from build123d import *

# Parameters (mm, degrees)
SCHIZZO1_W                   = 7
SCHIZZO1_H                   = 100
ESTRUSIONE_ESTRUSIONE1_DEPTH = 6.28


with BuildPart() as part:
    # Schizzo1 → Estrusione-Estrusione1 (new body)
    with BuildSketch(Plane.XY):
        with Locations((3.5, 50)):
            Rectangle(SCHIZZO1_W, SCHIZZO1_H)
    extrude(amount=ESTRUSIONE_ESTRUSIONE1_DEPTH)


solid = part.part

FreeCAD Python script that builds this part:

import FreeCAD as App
import Part
import Sketcher


def add_polygon(sketch, points):
    """Adds a closed chain of lines whose ends are joined by coincident constraints."""
    first, n = sketch.GeometryCount, len(points)
    for a, b in zip(points, points[1:] + points[:1]):
        sketch.addGeometry(Part.LineSegment(App.Vector(*a, 0), App.Vector(*b, 0)), False)
    for i in range(n):
        sketch.addConstraint(Sketcher.Constraint("Coincident", first + i, 2, first + (i + 1) % n, 1))

doc = App.newDocument("Part")
params = doc.addObject("Spreadsheet::Sheet", "Params")
for row, (alias, value) in enumerate([
    ("sketch1_width", "7 mm"),
    ("sketch1_height", "100 mm"),
    ("pad1_length", "6.28 mm"),
], start=1):
    params.set(f"A{row}", alias)
    params.set(f"B{row}", "=" + value)
    params.setAlias(f"B{row}", alias)

body = doc.addObject("PartDesign::Body", "Body")

# Sketch on XY plane
sketch1 = body.newObject("Sketcher::SketchObject", "Sketch")
sketch1.AttachmentSupport = (doc.getObject("XY_Plane"), [""])
sketch1.MapMode = "FlatFace"
add_polygon(sketch1, [(0, 100), (0, 0), (7, 0), (7, 100)])  # lines 0-3
sketch1.addConstraint(Sketcher.Constraint("Vertical", 0))
sketch1.addConstraint(Sketcher.Constraint("Horizontal", 1))
sketch1.addConstraint(Sketcher.Constraint("Vertical", 2))
sketch1.addConstraint(Sketcher.Constraint("Horizontal", 3))
sketch1.addConstraint(Sketcher.Constraint("Coincident", 0, 2, -1, 1))
sketch1.addConstraint(Sketcher.Constraint("DistanceX", 1, 1, 1, 2, 7.0))
sketch1.addConstraint(Sketcher.Constraint("DistanceY", 0, 2, 0, 1, 100.0))
sketch1.setExpression("Constraints[9]", "Params.sketch1_width")
sketch1.setExpression("Constraints[10]", "Params.sketch1_height")
pad1 = body.newObject("PartDesign::Pad", "Pad")
pad1.Profile = sketch1
pad1.setExpression("Length", "Params.pad1_length")

doc.recompute()
